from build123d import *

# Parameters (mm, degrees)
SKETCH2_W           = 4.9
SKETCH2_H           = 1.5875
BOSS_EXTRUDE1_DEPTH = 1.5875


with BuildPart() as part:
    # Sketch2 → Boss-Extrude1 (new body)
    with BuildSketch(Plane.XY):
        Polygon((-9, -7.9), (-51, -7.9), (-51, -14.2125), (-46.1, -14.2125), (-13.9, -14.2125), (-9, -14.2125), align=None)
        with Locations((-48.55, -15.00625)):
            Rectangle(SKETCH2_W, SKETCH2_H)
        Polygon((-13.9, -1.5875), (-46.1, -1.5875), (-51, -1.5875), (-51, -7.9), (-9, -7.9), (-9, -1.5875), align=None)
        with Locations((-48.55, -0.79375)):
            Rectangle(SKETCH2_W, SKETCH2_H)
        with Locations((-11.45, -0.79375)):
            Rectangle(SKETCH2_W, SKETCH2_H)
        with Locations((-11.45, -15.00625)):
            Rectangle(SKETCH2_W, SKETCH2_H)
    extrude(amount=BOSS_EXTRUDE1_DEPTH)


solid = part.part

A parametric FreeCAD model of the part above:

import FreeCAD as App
import Part
import Sketcher
Q = App.Units.Quantity

doc = App.newDocument("Part")
body = doc.addObject("PartDesign::Body", "Body")

# Sketch on XY plane
sketch1 = body.newObject("Sketcher::SketchObject", "Sketch")
sketch1.AttachmentSupport = (doc.getObject("XY_Plane"), [""])
sketch1.MapMode = "FlatFace"
sketch1.addGeometry(Part.LineSegment(App.Vector(-51, -15.8, 0), App.Vector(-46.1, -15.8, 0)), False)
sketch1.addGeometry(Part.LineSegment(App.Vector(-46.1, -15.8, 0), App.Vector(-46.1, -14.2, 0)), False)
sketch1.addGeometry(Part.LineSegment(App.Vector(-46.1, -14.2, 0), App.Vector(-13.9, -14.2, 0)), False)
sketch1.addGeometry(Part.LineSegment(App.Vector(-13.9, -14.2, 0), App.Vector(-13.9, -15.8, 0)), False)
sketch1.addGeometry(Part.LineSegment(App.Vector(-13.9, -15.8, 0), App.Vector(-9, -15.8, 0)), False)
sketch1.addGeometry(Part.LineSegment(App.Vector(-9, -15.8, 0), App.Vector(-9, 0, 0)), False)
sketch1.addGeometry(Part.LineSegment(App.Vector(-9, 0, 0), App.Vector(-13.9, 0, 0)), False)
sketch1.addGeometry(Part.LineSegment(App.Vector(-13.9, 0, 0), App.Vector(-13.9, -1.6, 0)), False)
sketch1.addGeometry(Part.LineSegment(App.Vector(-13.9, -1.6, 0), App.Vector(-46.1, -1.6, 0)), False)
sketch1.addGeometry(Part.LineSegment(App.Vector(-46.1, -1.6, 0), App.Vector(-46.1, 0, 0)), False)
sketch1.addGeometry(Part.LineSegment(App.Vector(-46.1, 0, 0), App.Vector(-51, 0, 0)), False)
sketch1.addGeometry(Part.LineSegment(App.Vector(-51, 0, 0), App.Vector(-51, -15.8, 0)), False)
sketch1.addConstraint(Sketcher.Constraint("Coincident", 0, 2, 1, 1))
sketch1.addConstraint(Sketcher.Constraint("Coincident", 1, 2, 2, 1))
sketch1.addConstraint(Sketcher.Constraint("Coincident", 2, 2, 3, 1))
sketch1.addConstraint(Sketcher.Constraint("Coincident", 3, 2, 4, 1))
sketch1.addConstraint(Sketcher.Constraint("Coincident", 4, 2, 5, 1))
sketch1.addConstraint(Sketcher.Constraint("Coincident", 5, 2, 6, 1))
sketch1.addConstraint(Sketcher.Constraint("Coincident", 6, 2, 7, 1))
sketch1.addConstraint(Sketcher.Constraint("Coincident", 7, 2, 8, 1))
sketch1.addConstraint(Sketcher.Constraint("Coincident", 8, 2, 9, 1))
sketch1.addConstraint(Sketcher.Constraint("Coincident", 9, 2, 10, 1))
sketch1.addConstraint(Sketcher.Constraint("Coincident", 10, 2, 11, 1))
sketch1.addConstraint(Sketcher.Constraint("Coincident", 11, 2, 0, 1))
sketch1.addConstraint(Sketcher.Constraint("Horizontal", 0))
sketch1.addConstraint(Sketcher.Constraint("Vertical", 1))
sketch1.addConstraint(Sketcher.Constraint("Horizontal", 2))
sketch1.addConstraint(Sketcher.Constraint("Vertical", 3))
sketch1.addConstraint(Sketcher.Constraint("Horizontal", 4))
sketch1.addConstraint(Sketcher.Constraint("Vertical", 5))
sketch1.addConstraint(Sketcher.Constraint("Horizontal", 6))
sketch1.addConstraint(Sketcher.Constraint("Vertical", 7))
sketch1.addConstraint(Sketcher.Constraint("Horizontal", 8))
sketch1.addConstraint(Sketcher.Constraint("Vertical", 9))
sketch1.addConstraint(Sketcher.Constraint("Horizontal", 10))
sketch1.addConstraint(Sketcher.Constraint("Vertical", 11))
sketch1.addConstraint(Sketcher.Constraint("PointOnObject", 5, 2, -1))
sketch1.addConstraint(Sketcher.Constraint("PointOnObject", 9, 2, -1))
sketch1.addConstraint(Sketcher.Constraint("Horizontal", 0, 2, 3, 2))
sketch1.addConstraint(Sketcher.Constraint("Vertical", 3, 2, 6, 2))
sketch1.addConstraint(Sketcher.Constraint("Vertical", 1, 2, 8, 2))
sketch1.addConstraint(Sketcher.Constraint("Equal", 0, 4))
sketch1.addConstraint(Sketcher.Constraint("Equal", 3, 7))
sketch1.addConstraint(Sketcher.Constraint("DistanceX", 0, 1, 0, 2, Q("4.9 mm")))
sketch1.addConstraint(Sketcher.Constraint("DistanceX", 2, 1, 2, 2, Q("32.2 mm")))
sketch1.addConstraint(Sketcher.Constraint("DistanceY", 5, 1, 5, 2, Q("15.8 mm")))
sketch1.addConstraint(Sketcher.Constraint("DistanceX", 4, 2, -1, 1, Q("9 mm")))
sketch1.addConstraint(Sketcher.Constraint("DistanceY", 1, 1, 1, 2, Q("1.5875 mm")))
pad1 = body.newObject("PartDesign::Pad", "Pad")
pad1.Profile = sketch1
pad1.Length = 1.5875

doc.recompute()
